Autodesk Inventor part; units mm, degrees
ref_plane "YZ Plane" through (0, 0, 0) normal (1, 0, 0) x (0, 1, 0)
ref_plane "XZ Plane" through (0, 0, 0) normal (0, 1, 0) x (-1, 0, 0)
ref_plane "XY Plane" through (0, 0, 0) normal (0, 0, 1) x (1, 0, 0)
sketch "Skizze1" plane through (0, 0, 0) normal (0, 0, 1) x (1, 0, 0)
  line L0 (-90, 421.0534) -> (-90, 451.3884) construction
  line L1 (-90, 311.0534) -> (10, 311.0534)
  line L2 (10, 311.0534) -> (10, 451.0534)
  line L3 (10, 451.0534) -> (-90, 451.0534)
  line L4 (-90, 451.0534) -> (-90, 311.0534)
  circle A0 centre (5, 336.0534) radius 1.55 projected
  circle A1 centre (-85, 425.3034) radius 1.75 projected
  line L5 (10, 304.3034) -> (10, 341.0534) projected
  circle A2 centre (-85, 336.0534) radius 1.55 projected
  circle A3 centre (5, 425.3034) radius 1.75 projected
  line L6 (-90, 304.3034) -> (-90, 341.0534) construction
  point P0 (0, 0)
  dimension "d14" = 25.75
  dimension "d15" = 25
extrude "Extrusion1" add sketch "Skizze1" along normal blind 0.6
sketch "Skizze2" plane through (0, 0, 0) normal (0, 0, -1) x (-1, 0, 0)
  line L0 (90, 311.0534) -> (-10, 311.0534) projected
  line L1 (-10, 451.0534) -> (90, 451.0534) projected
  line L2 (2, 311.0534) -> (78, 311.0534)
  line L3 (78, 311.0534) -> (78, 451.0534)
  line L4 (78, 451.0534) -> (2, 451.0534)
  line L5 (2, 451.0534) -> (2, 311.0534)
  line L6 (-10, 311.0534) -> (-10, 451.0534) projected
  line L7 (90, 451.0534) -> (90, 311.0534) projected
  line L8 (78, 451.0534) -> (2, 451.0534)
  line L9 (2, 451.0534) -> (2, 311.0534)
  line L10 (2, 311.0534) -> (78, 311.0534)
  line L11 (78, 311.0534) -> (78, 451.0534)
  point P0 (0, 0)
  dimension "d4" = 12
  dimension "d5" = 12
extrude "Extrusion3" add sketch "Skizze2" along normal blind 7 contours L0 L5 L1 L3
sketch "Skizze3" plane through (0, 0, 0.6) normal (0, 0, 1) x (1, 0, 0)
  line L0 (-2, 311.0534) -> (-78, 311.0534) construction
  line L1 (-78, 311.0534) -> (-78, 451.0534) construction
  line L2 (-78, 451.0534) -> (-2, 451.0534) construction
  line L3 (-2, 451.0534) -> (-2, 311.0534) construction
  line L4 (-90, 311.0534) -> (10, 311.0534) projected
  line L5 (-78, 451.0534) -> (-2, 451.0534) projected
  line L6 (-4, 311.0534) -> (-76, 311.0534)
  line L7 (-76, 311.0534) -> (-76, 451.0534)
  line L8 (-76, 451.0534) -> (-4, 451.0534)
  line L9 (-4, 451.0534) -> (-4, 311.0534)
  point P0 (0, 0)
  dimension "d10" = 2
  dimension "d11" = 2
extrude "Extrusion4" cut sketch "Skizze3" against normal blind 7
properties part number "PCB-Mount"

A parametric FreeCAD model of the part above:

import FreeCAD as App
import Part
import Sketcher

V = App.Vector
Q = App.Units.Quantity

doc = App.newDocument("Part")
body = doc.addObject("PartDesign::Body", "Body")

# Sketch on XY plane
sketch1 = body.newObject("Sketcher::SketchObject", "Sketch")
sketch1.AttachmentSupport = (doc.getObject("XY_Plane"), [""])
sketch1.MapMode = "FlatFace"
sketch1.addGeometry([
    Part.LineSegment(V(-90, 451.1, 0), V(-90, 311.1, 0)),  # 0
    Part.LineSegment(V(-90, 311.1, 0), V(10, 311.1, 0)),  # 1
    Part.LineSegment(V(10, 311.1, 0), V(10, 451.1, 0)),  # 2
    Part.LineSegment(V(10, 451.1, 0), V(-90, 451.1, 0)),  # 3
    Part.Circle(V(-85, 336.1, 0), V(0, 0, 1), 1.6),  # 4
    Part.Circle(V(5, 336.1, 0), V(0, 0, 1), 1.6),  # 5
    Part.Circle(V(-85, 425.3, 0), V(0, 0, 1), 1.8),  # 6
    Part.Circle(V(5, 425.3, 0), V(0, 0, 1), 1.8),  # 7
], False)
sketch1.addConstraint([
    Sketcher.Constraint("Coincident", 0, 2, 1, 1),
    Sketcher.Constraint("Coincident", 1, 2, 2, 1),
    Sketcher.Constraint("Coincident", 2, 2, 3, 1),
    Sketcher.Constraint("Coincident", 3, 2, 0, 1),
    Sketcher.Constraint("Vertical", 0),
    Sketcher.Constraint("Horizontal", 1),
    Sketcher.Constraint("Vertical", 2),
    Sketcher.Constraint("Horizontal", 3),
    Sketcher.Constraint("Equal", 4, 5),
    Sketcher.Constraint("Equal", 6, 7),
    Sketcher.Constraint("Horizontal", 4, 3, 5, 3),
    Sketcher.Constraint("Horizontal", 6, 3, 7, 3),
    Sketcher.Constraint("Vertical", 4, 3, 6, 3),
    Sketcher.Constraint("Vertical", 5, 3, 7, 3),
    Sketcher.Constraint("DistanceY", 0, 2, 4, 3, Q("25 mm")),
    Sketcher.Constraint("Diameter", 4, Q("3.1 mm")),
    Sketcher.Constraint("Diameter", 6, Q("3.5 mm")),
    Sketcher.Constraint("DistanceX", 1, 1, 1, 2, Q("100 mm")),
    Sketcher.Constraint("DistanceY", 0, 2, 0, 1, Q("140 mm")),
    Sketcher.Constraint("DistanceY", 7, 3, 2, 2, Q("25.75 mm")),
    Sketcher.Constraint("DistanceX", 4, 3, -1, 1, Q("85 mm")),
    Sketcher.Constraint("DistanceX", -1, 1, 5, 3, Q("5 mm")),
    Sketcher.Constraint("DistanceX", 0, 2, -1, 1, Q("90 mm")),
    Sketcher.Constraint("DistanceY", -1, 1, 4, 3, Q("336.0534 mm")),
])
pad1 = body.newObject("PartDesign::Pad", "Pad")
pad1.Profile = sketch1
pad1.Length = 0.6

# Sketch on XY plane
sketch2 = body.newObject("Sketcher::SketchObject", "Sketch001")
sketch2.AttachmentSupport = (doc.getObject("XY_Plane"), [""])
sketch2.MapMode = "FlatFace"
sketch2.addGeometry([
    Part.LineSegment(V(-2, 311, 0), V(-78, 311, 0)),
    Part.LineSegment(V(-78, 311, 0), V(-78, 451, 0)),
    Part.LineSegment(V(-78, 451, 0), V(-2, 451, 0)),
    Part.LineSegment(V(-2, 451, 0), V(-2, 311, 0)),
], False)
sketch2.addConstraint([
    Sketcher.Constraint("Coincident", 0, 2, 1, 1),
    Sketcher.Constraint("Coincident", 1, 2, 2, 1),
    Sketcher.Constraint("Coincident", 2, 2, 3, 1),
    Sketcher.Constraint("Coincident", 3, 2, 0, 1),
    Sketcher.Constraint("Horizontal", 0),
    Sketcher.Constraint("Vertical", 1),
    Sketcher.Constraint("Horizontal", 2),
    Sketcher.Constraint("Vertical", 3),
    Sketcher.Constraint("DistanceX", 0, 2, 0, 1, Q("76 mm")),
    Sketcher.Constraint("DistanceY", 1, 1, 1, 2, Q("140 mm")),
    Sketcher.Constraint("DistanceX", 0, 2, -1, 1, Q("78 mm")),
    Sketcher.Constraint("DistanceY", -1, 1, 0, 2, Q("311.0534 mm")),
])
pad2 = body.newObject("PartDesign::Pad", "Pad001")
pad2.Profile = sketch2
pad2.Length = 7
pad2.Reversed = True

# Sketch on XY plane
sketch3 = body.newObject("Sketcher::SketchObject", "Sketch002")
sketch3.AttachmentSupport = (doc.getObject("XY_Plane"), [""])
sketch3.MapMode = "FlatFace"
sketch3.AttachmentOffset = App.Placement(V(0, 0, 0.6), App.Rotation())
sketch3.addGeometry([
    Part.LineSegment(V(-76, 451, 0), V(-76, 311, 0)),
    Part.LineSegment(V(-76, 311, 0), V(-4, 311, 0)),
    Part.LineSegment(V(-4, 311, 0), V(-4, 451, 0)),
    Part.LineSegment(V(-4, 451, 0), V(-76, 451, 0)),
], False)
sketch3.addConstraint([
    Sketcher.Constraint("Coincident", 0, 2, 1, 1),
    Sketcher.Constraint("Coincident", 1, 2, 2, 1),
    Sketcher.Constraint("Coincident", 2, 2, 3, 1),
    Sketcher.Constraint("Coincident", 3, 2, 0, 1),
    Sketcher.Constraint("Vertical", 0),
    Sketcher.Constraint("Horizontal", 1),
    Sketcher.Constraint("Vertical", 2),
    Sketcher.Constraint("Horizontal", 3),
    Sketcher.Constraint("DistanceX", 1, 1, 1, 2, Q("72 mm")),
    Sketcher.Constraint("DistanceY", 0, 2, 0, 1, Q("140 mm")),
    Sketcher.Constraint("DistanceX", 0, 2, -1, 1, Q("76 mm")),
    Sketcher.Constraint("DistanceY", -1, 1, 0, 2, Q("311.0534 mm")),
])
pocket1 = body.newObject("PartDesign::Pocket", "Pocket")
pocket1.Profile = sketch3
pocket1.Length = 7

doc.recompute()
